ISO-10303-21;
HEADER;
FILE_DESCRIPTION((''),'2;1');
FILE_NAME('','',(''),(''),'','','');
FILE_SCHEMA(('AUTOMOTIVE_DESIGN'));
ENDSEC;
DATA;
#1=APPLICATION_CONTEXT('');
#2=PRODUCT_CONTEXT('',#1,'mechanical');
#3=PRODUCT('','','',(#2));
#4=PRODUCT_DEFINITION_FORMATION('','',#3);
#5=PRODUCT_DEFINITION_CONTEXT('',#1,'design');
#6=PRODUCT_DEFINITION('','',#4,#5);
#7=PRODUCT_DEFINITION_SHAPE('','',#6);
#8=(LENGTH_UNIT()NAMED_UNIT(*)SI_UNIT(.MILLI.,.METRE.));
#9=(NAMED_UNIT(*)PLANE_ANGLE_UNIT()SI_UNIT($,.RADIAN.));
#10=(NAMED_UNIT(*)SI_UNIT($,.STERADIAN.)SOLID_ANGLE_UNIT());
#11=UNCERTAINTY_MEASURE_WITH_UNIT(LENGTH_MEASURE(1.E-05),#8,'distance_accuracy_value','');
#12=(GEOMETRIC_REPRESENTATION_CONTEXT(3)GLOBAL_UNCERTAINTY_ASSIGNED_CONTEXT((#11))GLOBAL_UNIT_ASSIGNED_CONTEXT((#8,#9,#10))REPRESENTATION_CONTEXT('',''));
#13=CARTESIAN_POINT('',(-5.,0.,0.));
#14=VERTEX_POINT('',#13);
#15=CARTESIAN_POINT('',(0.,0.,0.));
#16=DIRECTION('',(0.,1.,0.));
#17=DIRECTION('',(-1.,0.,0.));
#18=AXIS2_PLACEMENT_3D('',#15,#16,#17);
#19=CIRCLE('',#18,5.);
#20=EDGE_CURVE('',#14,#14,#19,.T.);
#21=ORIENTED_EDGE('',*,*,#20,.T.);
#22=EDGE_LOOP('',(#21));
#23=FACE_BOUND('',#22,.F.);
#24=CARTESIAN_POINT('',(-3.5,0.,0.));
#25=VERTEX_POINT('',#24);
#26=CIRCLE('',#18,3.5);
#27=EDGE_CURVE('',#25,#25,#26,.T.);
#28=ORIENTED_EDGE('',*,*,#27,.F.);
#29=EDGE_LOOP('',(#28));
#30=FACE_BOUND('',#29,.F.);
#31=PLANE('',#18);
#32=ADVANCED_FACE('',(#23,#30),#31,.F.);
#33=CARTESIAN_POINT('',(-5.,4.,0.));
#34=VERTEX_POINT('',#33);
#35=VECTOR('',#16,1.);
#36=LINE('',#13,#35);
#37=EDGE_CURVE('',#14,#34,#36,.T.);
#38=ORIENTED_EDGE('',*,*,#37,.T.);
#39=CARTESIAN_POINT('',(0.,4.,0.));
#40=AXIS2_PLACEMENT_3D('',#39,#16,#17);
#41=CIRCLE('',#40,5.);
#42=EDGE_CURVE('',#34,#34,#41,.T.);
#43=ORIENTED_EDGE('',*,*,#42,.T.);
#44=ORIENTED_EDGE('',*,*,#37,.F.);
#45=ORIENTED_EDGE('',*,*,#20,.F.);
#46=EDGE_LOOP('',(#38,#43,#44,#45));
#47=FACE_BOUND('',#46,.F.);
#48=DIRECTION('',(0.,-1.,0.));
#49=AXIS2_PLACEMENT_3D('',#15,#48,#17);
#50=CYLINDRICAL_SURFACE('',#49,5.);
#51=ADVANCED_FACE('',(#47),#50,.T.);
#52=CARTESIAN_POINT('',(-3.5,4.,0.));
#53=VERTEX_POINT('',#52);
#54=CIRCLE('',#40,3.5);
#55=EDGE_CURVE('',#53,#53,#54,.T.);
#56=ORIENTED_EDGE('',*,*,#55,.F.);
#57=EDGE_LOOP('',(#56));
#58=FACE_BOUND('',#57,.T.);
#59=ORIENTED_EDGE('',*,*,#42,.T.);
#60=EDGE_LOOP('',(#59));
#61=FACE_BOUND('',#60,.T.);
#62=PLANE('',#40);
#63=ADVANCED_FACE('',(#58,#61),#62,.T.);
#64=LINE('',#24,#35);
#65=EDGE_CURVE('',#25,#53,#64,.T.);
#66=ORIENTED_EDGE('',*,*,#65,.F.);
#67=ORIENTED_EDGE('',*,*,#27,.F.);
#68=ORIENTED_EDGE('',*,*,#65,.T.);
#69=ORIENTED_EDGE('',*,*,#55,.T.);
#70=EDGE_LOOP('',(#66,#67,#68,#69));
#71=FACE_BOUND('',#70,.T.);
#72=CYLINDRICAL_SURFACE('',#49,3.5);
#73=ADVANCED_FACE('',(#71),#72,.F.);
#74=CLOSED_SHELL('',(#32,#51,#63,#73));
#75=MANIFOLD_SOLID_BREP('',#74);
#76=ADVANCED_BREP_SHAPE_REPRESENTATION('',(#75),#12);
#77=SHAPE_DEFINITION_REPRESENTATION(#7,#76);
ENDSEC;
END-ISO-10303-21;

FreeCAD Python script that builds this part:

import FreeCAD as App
import Part
import Sketcher
from FreeCAD import Vector

doc = App.newDocument("Part")
body = doc.addObject("PartDesign::Body", "Body")

# Sketch on XZ plane
sketch1 = body.newObject("Sketcher::SketchObject", "Sketch")
sketch1.AttachmentSupport = (doc.getObject("XZ_Plane"), [""])
sketch1.MapMode = "FlatFace"
sketch1.addGeometry(Part.Circle(Vector(0, 0, 0), Vector(0, 0, 1), 5), False)
sketch1.addGeometry(Part.Circle(Vector(0, 0, 0), Vector(0, 0, 1), 3.5), False)
sketch1.addConstraint(Sketcher.Constraint("Coincident", 0, 3, -1, 1))
sketch1.addConstraint(Sketcher.Constraint("Coincident", 1, 3, -1, 1))
sketch1.addConstraint(Sketcher.Constraint("Diameter", 0, 10.0))
sketch1.addConstraint(Sketcher.Constraint("Diameter", 1, 7.0))
pad1 = body.newObject("PartDesign::Pad", "Pad")
pad1.Profile = sketch1
pad1.Length = 4
pad1.Reversed = True

doc.recompute()
